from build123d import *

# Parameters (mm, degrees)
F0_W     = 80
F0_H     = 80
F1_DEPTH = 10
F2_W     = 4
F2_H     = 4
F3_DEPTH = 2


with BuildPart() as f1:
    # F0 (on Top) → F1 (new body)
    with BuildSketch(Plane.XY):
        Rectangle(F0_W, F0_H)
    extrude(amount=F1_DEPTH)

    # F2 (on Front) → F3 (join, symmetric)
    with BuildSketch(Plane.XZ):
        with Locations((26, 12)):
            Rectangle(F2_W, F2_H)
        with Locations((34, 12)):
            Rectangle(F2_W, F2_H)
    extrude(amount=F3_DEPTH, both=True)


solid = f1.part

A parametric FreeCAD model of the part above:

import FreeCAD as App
import Part
import Sketcher


def add_polygon(sketch, points):
    """Adds a closed chain of lines whose ends are joined by coincident constraints."""
    first, n = sketch.GeometryCount, len(points)
    for a, b in zip(points, points[1:] + points[:1]):
        sketch.addGeometry(Part.LineSegment(App.Vector(*a, 0), App.Vector(*b, 0)), False)
    for i in range(n):
        sketch.addConstraint(Sketcher.Constraint("Coincident", first + i, 2, first + (i + 1) % n, 1))

doc = App.newDocument("Part")
params = doc.addObject("Spreadsheet::Sheet", "Params")
for row, (alias, value) in enumerate([
    ("sketch1_width", "80 mm"),
    ("pad1_length", "10 mm"),
    ("sketch2_width", "4 mm"),
    ("pad2_length", "4 mm"),
], start=1):
    params.set(f"A{row}", alias)
    params.set(f"B{row}", "=" + value)
    params.setAlias(f"B{row}", alias)

body = doc.addObject("PartDesign::Body", "Body")

sketch1 = doc.addObject("Sketcher::SketchObject", "Sketch")
body.addObject(sketch1)
sketch1.AttachmentSupport = (doc.XY_Plane, [""])
sketch1.MapMode = "FlatFace"
add_polygon(sketch1, [(-40, 40), (-40, -40), (40, -40), (40, 40)])
sketch1.addConstraint([
    Sketcher.Constraint("Vertical", 0),
    Sketcher.Constraint("Horizontal", 1),
    Sketcher.Constraint("Vertical", 2),
    Sketcher.Constraint("Horizontal", 3),
    Sketcher.Constraint("Symmetric", 0, 2, 2, 2, -1, 1),
    Sketcher.Constraint("Equal", 3, 0),
    Sketcher.Constraint("DistanceX", 1, 1, 1, 2, 80.0),
])
sketch1.setExpression("Constraints[10]", "Params.sketch1_width")
pad1 = doc.addObject("PartDesign::Pad", "Pad")
body.addObject(pad1)
pad1.Profile = sketch1
pad1.setExpression("Length", "Params.pad1_length")

sketch2 = doc.addObject("Sketcher::SketchObject", "Sketch001")
body.addObject(sketch2)
sketch2.AttachmentSupport = (doc.XZ_Plane, [""])
sketch2.MapMode = "FlatFace"
add_polygon(sketch2, [(24, 14), (24, 10), (28, 10), (28, 14)])
add_polygon(sketch2, [(32, 14), (32, 10), (36, 10), (36, 14)])
sketch2.addConstraint([
    Sketcher.Constraint("Vertical", 0),
    Sketcher.Constraint("Horizontal", 1),
    Sketcher.Constraint("Vertical", 2),
    Sketcher.Constraint("Horizontal", 3),
    Sketcher.Constraint("Vertical", 4),
    Sketcher.Constraint("Horizontal", 5),
    Sketcher.Constraint("Vertical", 6),
    Sketcher.Constraint("Horizontal", 7),
    Sketcher.Constraint("Horizontal", 1, 2, 4, 2),
    Sketcher.Constraint("Horizontal", 3, 2, 6, 2),
    Sketcher.Constraint("Equal", 3, 5),
    Sketcher.Constraint("Equal", 7, 0),
    Sketcher.Constraint("DistanceX", 1, 1, 1, 2, 4.0),
    Sketcher.Constraint("DistanceX", -1, 1, 0, 2, 24.0),
    Sketcher.Constraint("DistanceY", -1, 1, 0, 2, 10.0),
    Sketcher.Constraint("DistanceX", -1, 1, 4, 2, 32.0),
])
sketch2.setExpression("Constraints[20]", "Params.sketch2_width")
pad2 = doc.addObject("PartDesign::Pad", "Pad001")
body.addObject(pad2)
pad2.Profile = sketch2
pad2.setExpression("Length", "Params.pad2_length")
pad2.Midplane = True

doc.recompute()
